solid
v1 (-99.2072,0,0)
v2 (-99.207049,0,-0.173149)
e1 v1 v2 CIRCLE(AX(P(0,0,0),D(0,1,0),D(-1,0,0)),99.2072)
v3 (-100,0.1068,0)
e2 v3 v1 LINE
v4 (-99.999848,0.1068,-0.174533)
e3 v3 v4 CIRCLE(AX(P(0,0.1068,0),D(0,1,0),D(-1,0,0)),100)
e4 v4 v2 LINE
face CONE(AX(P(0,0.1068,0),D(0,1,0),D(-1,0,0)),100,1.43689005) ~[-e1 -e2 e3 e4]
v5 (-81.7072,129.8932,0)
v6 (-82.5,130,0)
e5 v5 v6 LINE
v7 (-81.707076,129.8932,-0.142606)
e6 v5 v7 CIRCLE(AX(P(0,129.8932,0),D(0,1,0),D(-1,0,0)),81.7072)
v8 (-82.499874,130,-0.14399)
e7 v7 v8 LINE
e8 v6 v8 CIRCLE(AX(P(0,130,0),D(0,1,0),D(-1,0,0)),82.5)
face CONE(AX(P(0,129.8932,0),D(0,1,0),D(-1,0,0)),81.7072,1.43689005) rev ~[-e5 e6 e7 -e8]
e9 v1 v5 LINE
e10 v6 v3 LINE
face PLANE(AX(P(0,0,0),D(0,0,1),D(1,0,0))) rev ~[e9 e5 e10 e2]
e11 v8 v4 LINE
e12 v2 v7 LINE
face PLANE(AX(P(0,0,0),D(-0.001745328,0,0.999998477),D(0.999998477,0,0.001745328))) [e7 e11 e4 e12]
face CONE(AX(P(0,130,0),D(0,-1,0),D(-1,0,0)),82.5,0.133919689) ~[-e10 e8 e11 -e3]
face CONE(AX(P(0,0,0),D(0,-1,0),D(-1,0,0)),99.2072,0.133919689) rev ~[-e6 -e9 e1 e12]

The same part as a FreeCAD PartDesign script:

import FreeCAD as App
import Part
import Sketcher
from FreeCAD import Vector
Q = App.Units.Quantity

doc = App.newDocument("Part")
params = doc.addObject("Spreadsheet::Sheet", "Params")
for row, (alias, value) in enumerate([
    ("sketch1_length", "0.8 mm"),
    ("revolution_angle", "359.9 deg"),
], start=1):
    params.set(f"A{row}", alias)
    params.set(f"B{row}", "=" + value)
    params.setAlias(f"B{row}", alias)

body = doc.addObject("PartDesign::Body", "Body")

# Sketch on XY plane
sketch1 = body.newObject("Sketcher::SketchObject", "Sketch")
sketch1.AttachmentSupport = (doc.getObject("XY_Plane"), [""])
sketch1.MapMode = "FlatFace"
sketch1.addGeometry(Part.LineSegment(Vector(-81.7, 129.9, 0), Vector(-82.5, 130, 0)), False)
sketch1.addGeometry(Part.LineSegment(Vector(-82.5, 130, 0), Vector(-100, 0.1, 0)), False)
sketch1.addGeometry(Part.LineSegment(Vector(-100, 0.1, 0), Vector(-99.2, 0, 0)), False)
sketch1.addGeometry(Part.LineSegment(Vector(-99.2, 0, 0), Vector(-81.7, 129.9, 0)), False)
sketch1.addConstraint(Sketcher.Constraint("Coincident", 0, 2, 1, 1))
sketch1.addConstraint(Sketcher.Constraint("Coincident", 1, 2, 2, 1))
sketch1.addConstraint(Sketcher.Constraint("Coincident", 2, 2, 3, 1))
sketch1.addConstraint(Sketcher.Constraint("Coincident", 3, 2, 0, 1))
sketch1.addConstraint(Sketcher.Constraint("PointOnObject", 2, 2, -1))
sketch1.addConstraint(Sketcher.Constraint("Perpendicular", 0, 1))
sketch1.addConstraint(Sketcher.Constraint("Perpendicular", 1, 2))
sketch1.addConstraint(Sketcher.Constraint("Perpendicular", 2, 3))
sketch1.addConstraint(Sketcher.Constraint("DistanceY", -1, 1, 0, 2, Q("130 mm")))
sketch1.addConstraint(Sketcher.Constraint("Distance", 0, Q("0.8 mm")))
sketch1.addConstraint(Sketcher.Constraint("DistanceX", 1, 2, -1, 1, Q("100 mm")))
sketch1.addConstraint(Sketcher.Constraint("DistanceX", 0, 2, -1, 1, Q("82.5 mm")))
sketch1.setExpression("Constraints[9]", "Params.sketch1_length")
revolution = body.newObject("PartDesign::Revolution", "Revolution")
revolution.Profile = sketch1
revolution.ReferenceAxis = (sketch1, ["V_Axis"])
revolution.setExpression("Angle", "Params.revolution_angle")

doc.recompute()
